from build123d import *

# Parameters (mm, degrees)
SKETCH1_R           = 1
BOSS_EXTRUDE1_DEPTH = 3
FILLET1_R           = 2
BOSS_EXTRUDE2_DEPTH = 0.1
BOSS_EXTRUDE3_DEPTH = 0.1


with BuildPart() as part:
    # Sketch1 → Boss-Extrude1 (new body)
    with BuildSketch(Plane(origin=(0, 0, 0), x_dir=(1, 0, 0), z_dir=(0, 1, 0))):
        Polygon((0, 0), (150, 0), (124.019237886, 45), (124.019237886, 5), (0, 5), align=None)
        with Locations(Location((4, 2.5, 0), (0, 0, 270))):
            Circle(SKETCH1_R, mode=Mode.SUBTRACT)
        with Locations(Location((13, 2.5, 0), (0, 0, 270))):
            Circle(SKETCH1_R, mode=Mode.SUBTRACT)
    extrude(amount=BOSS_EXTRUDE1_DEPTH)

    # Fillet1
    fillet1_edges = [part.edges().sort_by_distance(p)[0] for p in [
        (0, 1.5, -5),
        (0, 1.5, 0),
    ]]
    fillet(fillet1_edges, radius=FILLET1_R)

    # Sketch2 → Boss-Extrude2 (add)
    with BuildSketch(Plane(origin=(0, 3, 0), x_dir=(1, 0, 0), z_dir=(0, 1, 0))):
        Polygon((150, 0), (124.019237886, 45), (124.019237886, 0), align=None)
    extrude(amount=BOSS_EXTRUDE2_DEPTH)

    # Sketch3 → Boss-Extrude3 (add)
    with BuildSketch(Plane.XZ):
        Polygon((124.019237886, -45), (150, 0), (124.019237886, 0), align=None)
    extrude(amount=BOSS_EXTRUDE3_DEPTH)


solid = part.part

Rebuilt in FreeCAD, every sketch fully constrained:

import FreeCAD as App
import Part
import Sketcher

V = App.Vector
Q = App.Units.Quantity


def edges_at(feature, points):
    """Names of the edges that pass closest to the given points."""
    edges = feature.Shape.Edges
    near = lambda p: min(range(len(edges)), key=lambda i: edges[i].distToShape(Part.Vertex(*p))[0])
    return sorted({f"Edge{near(p) + 1}" for p in points})

doc = App.newDocument("Part")
body = doc.addObject("PartDesign::Body", "Body")

sketch1 = body.newObject("Sketcher::SketchObject", "Sketch")
sketch1.AttachmentSupport = (doc.getObject("XZ_Plane"), [""])
sketch1.MapMode = "FlatFace"
sketch1.addGeometry(Part.LineSegment(V(0, 0, 0), V(150, 0, 0)), False)
sketch1.addGeometry(Part.LineSegment(V(150, 0, 0), V(124.019238, -45, 0)), False)
sketch1.addGeometry(Part.LineSegment(V(124.019238, -45, 0), V(124.019238, -5, 0)), False)
sketch1.addGeometry(Part.LineSegment(V(124.019238, -5, 0), V(0, -5, 0)), False)
sketch1.addGeometry(Part.LineSegment(V(0, -5, 0), V(0, 0, 0)), False)
sketch1.addGeometry(Part.Circle(V(4, -2.5, 0), V(0, 0, 1), 1), False)
sketch1.addGeometry(Part.Circle(V(13, -2.5, 0), V(0, 0, 1), 1), False)
sketch1.addConstraint(Sketcher.Constraint("Coincident", 0, 2, 1, 1))
sketch1.addConstraint(Sketcher.Constraint("Coincident", 1, 2, 2, 1))
sketch1.addConstraint(Sketcher.Constraint("Coincident", 2, 2, 3, 1))
sketch1.addConstraint(Sketcher.Constraint("Coincident", 3, 2, 4, 1))
sketch1.addConstraint(Sketcher.Constraint("Coincident", 4, 2, 0, 1))
sketch1.addConstraint(Sketcher.Constraint("Horizontal", 0))
sketch1.addConstraint(Sketcher.Constraint("Vertical", 2))
sketch1.addConstraint(Sketcher.Constraint("Horizontal", 3))
sketch1.addConstraint(Sketcher.Constraint("Vertical", 4))
sketch1.addConstraint(Sketcher.Constraint("Coincident", 4, 2, -1, 1))
sketch1.addConstraint(Sketcher.Constraint("Equal", 5, 6))
sketch1.addConstraint(Sketcher.Constraint("Horizontal", 5, 3, 6, 3))
sketch1.addConstraint(Sketcher.Constraint("Diameter", 5, 2.0))
sketch1.addConstraint(Sketcher.Constraint("DistanceX", 0, 1, 0, 2, 150.0))
sketch1.addConstraint(Sketcher.Constraint("DistanceY", 2, 1, 2, 2, 40.0))
sketch1.addConstraint(Sketcher.Constraint("DistanceY", 4, 1, 4, 2, 5.0))
sketch1.addConstraint(Sketcher.Constraint("Angle", 1, Q("-120 deg")))
sketch1.addConstraint(Sketcher.Constraint("DistanceX", -1, 1, 5, 3, 4.0))
sketch1.addConstraint(Sketcher.Constraint("DistanceX", -1, 1, 6, 3, 13.0))
sketch1.addConstraint(Sketcher.Constraint("DistanceY", 5, 3, -1, 1, 2.5))
pad1 = body.newObject("PartDesign::Pad", "Pad")
pad1.Profile = sketch1
pad1.Length = 3
pad1.Reversed = True
doc.recompute()

fillet = body.newObject("PartDesign::Fillet", "Fillet")
fillet.Base = (pad1, edges_at(pad1, [(0, 1.5, -5), (0, 1.5, 0)]))
fillet.Radius = 2

sketch2 = body.newObject("Sketcher::SketchObject", "Sketch001")
sketch2.AttachmentSupport = (doc.getObject("XZ_Plane"), [""])
sketch2.MapMode = "FlatFace"
sketch2.AttachmentOffset = App.Placement(V(0, 0, -3), App.Rotation())
sketch2.addGeometry(Part.LineSegment(V(150, 0, 0), V(124.019238, -45, 0)), False)
sketch2.addGeometry(Part.LineSegment(V(124.019238, -45, 0), V(124.019238, 0, 0)), False)
sketch2.addGeometry(Part.LineSegment(V(124.019238, 0, 0), V(150, 0, 0)), False)
sketch2.addConstraint(Sketcher.Constraint("Coincident", 0, 2, 1, 1))
sketch2.addConstraint(Sketcher.Constraint("Coincident", 1, 2, 2, 1))
sketch2.addConstraint(Sketcher.Constraint("Coincident", 2, 2, 0, 1))
sketch2.addConstraint(Sketcher.Constraint("Vertical", 1))
sketch2.addConstraint(Sketcher.Constraint("Horizontal", 2))
sketch2.addConstraint(Sketcher.Constraint("PointOnObject", 1, 2, -1))
sketch2.addConstraint(Sketcher.Constraint("DistanceY", 1, 1, 1, 2, 45.0))
sketch2.addConstraint(Sketcher.Constraint("Angle", 0, Q("-120 deg")))
sketch2.addConstraint(Sketcher.Constraint("DistanceX", -1, 1, 2, 2, 150.0))
pad2 = body.newObject("PartDesign::Pad", "Pad001")
pad2.Profile = sketch2
pad2.Length = 0.1
pad2.Reversed = True

sketch3 = body.newObject("Sketcher::SketchObject", "Sketch002")
sketch3.AttachmentSupport = (doc.getObject("XZ_Plane"), [""])
sketch3.MapMode = "FlatFace"
sketch3.addGeometry(Part.LineSegment(V(124.019238, -45, 0), V(150, 0, 0)), False)
sketch3.addGeometry(Part.LineSegment(V(150, 0, 0), V(124.019238, 0, 0)), False)
sketch3.addGeometry(Part.LineSegment(V(124.019238, 0, 0), V(124.019238, -45, 0)), False)
sketch3.addConstraint(Sketcher.Constraint("Coincident", 0, 2, 1, 1))
sketch3.addConstraint(Sketcher.Constraint("Coincident", 1, 2, 2, 1))
sketch3.addConstraint(Sketcher.Constraint("Coincident", 2, 2, 0, 1))
sketch3.addConstraint(Sketcher.Constraint("Horizontal", 1))
sketch3.addConstraint(Sketcher.Constraint("Vertical", 2))
sketch3.addConstraint(Sketcher.Constraint("PointOnObject", 0, 2, -1))
sketch3.addConstraint(Sketcher.Constraint("DistanceY", 2, 2, 2, 1, 45.0))
sketch3.addConstraint(Sketcher.Constraint("Angle", 0, Q("60 deg")))
sketch3.addConstraint(Sketcher.Constraint("DistanceX", -1, 1, 0, 2, 150.0))
pad3 = body.newObject("PartDesign::Pad", "Pad002")
pad3.Profile = sketch3
pad3.Length = 0.1

doc.recompute()
